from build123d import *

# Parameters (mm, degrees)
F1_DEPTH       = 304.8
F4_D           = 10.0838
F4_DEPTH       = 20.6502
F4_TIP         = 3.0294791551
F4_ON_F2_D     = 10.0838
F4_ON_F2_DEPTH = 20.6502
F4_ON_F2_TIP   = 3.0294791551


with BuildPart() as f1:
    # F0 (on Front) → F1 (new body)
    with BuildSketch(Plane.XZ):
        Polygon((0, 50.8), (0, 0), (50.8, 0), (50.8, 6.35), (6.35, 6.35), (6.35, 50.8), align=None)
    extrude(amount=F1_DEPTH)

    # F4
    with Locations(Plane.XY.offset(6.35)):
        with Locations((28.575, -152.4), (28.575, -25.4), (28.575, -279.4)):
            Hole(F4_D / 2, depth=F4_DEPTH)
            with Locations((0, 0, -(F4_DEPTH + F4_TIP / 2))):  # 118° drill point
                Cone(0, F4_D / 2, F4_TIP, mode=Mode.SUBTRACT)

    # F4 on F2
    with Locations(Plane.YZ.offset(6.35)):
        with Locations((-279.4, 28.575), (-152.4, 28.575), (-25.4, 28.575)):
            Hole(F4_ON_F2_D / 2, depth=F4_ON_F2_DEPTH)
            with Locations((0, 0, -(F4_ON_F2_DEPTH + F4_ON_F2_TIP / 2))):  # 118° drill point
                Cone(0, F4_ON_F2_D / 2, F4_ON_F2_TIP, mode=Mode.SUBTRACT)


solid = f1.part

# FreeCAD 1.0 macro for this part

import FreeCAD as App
import Part
import Sketcher
from FreeCAD import Vector
Q = App.Units.Quantity


def add_polygon(sketch, points):
    """Adds a closed chain of lines whose ends are joined by coincident constraints."""
    first, n = sketch.GeometryCount, len(points)
    for a, b in zip(points, points[1:] + points[:1]):
        sketch.addGeometry(Part.LineSegment(App.Vector(*a, 0), App.Vector(*b, 0)), False)
    for i in range(n):
        sketch.addConstraint(Sketcher.Constraint("Coincident", first + i, 2, first + (i + 1) % n, 1))

doc = App.newDocument("Part")
body = doc.addObject("PartDesign::Body", "Body")

# Sketch on XZ plane
sketch1 = body.newObject("Sketcher::SketchObject", "Sketch")
sketch1.AttachmentSupport = (doc.getObject("XZ_Plane"), [""])
sketch1.MapMode = "FlatFace"
add_polygon(sketch1, [(0, 51), (0, 0), (51, 0), (51, 6), (6, 6), (6, 51)])  # lines 0-5
sketch1.addConstraint(Sketcher.Constraint("Vertical", 0))
sketch1.addConstraint(Sketcher.Constraint("Horizontal", 1))
sketch1.addConstraint(Sketcher.Constraint("Vertical", 2))
sketch1.addConstraint(Sketcher.Constraint("Horizontal", 3))
sketch1.addConstraint(Sketcher.Constraint("Vertical", 4))
sketch1.addConstraint(Sketcher.Constraint("Horizontal", 5))
sketch1.addConstraint(Sketcher.Constraint("Coincident", 0, 2, -1, 1))
sketch1.addConstraint(Sketcher.Constraint("Equal", 1, 0))
sketch1.addConstraint(Sketcher.Constraint("Equal", 5, 2))
sketch1.addConstraint(Sketcher.Constraint("DistanceX", 1, 1, 1, 2, Q("2 in")))
sketch1.addConstraint(Sketcher.Constraint("DistanceX", 3, 2, 3, 1, Q("1.75 in")))
pad1 = body.newObject("PartDesign::Pad", "Pad")
pad1.Profile = sketch1
pad1.Length = Q("12 in")

# Sketch on XY plane
sketch2 = body.newObject("Sketcher::SketchObject", "Sketch001")
sketch2.AttachmentSupport = (doc.getObject("XY_Plane"), [""])
sketch2.MapMode = "FlatFace"
sketch2.AttachmentOffset = App.Placement(Vector(0, 0, 0.25 * 25.4), App.Rotation())
sketch2.addGeometry(Part.Circle(Vector(29, -152, 0), Vector(0, 0, 1), 5), False)
sketch2.addGeometry(Part.Circle(Vector(29, -25, 0), Vector(0, 0, 1), 5), False)
sketch2.addGeometry(Part.Circle(Vector(29, -279, 0), Vector(0, 0, 1), 5), False)
sketch2.addConstraint(Sketcher.Constraint("Equal", 0, 1))
sketch2.addConstraint(Sketcher.Constraint("Equal", 1, 2))
sketch2.addConstraint(Sketcher.Constraint("Vertical", 0, 3, 1, 3))
sketch2.addConstraint(Sketcher.Constraint("Vertical", 1, 3, 2, 3))
sketch2.addConstraint(Sketcher.Constraint("Diameter", 0, Q("0.397 in")))
sketch2.addConstraint(Sketcher.Constraint("DistanceY", 0, 3, -1, 1, Q("6 in")))
sketch2.addConstraint(Sketcher.Constraint("DistanceY", 1, 3, -1, 1, Q("1 in")))
sketch2.addConstraint(Sketcher.Constraint("DistanceY", 2, 3, -1, 1, Q("11 in")))
sketch2.addConstraint(Sketcher.Constraint("DistanceX", -1, 1, 0, 3, Q("1.125 in")))
doc.recompute()
hole = body.newObject("PartDesign::Hole", "Hole")
hole.Profile = sketch2
hole.ThreadType = "None"
hole.Diameter = Q("0.397 in")
hole.DepthType = "Dimension"
hole.Depth = Q("0.813 in")
hole.DrillPoint = "Angled"
hole.DrillPointAngle = 118

# Sketch on YZ plane
sketch3 = body.newObject("Sketcher::SketchObject", "Sketch002")
sketch3.AttachmentSupport = (doc.getObject("YZ_Plane"), [""])
sketch3.MapMode = "FlatFace"
sketch3.AttachmentOffset = App.Placement(Vector(0, 0, 0.25 * 25.4), App.Rotation())
sketch3.addGeometry(Part.Circle(Vector(-279, 29, 0), Vector(0, 0, 1), 5), False)
sketch3.addGeometry(Part.Circle(Vector(-152, 29, 0), Vector(0, 0, 1), 5), False)
sketch3.addGeometry(Part.Circle(Vector(-25, 29, 0), Vector(0, 0, 1), 5), False)
sketch3.addConstraint(Sketcher.Constraint("Equal", 0, 1))
sketch3.addConstraint(Sketcher.Constraint("Equal", 1, 2))
sketch3.addConstraint(Sketcher.Constraint("Horizontal", 0, 3, 1, 3))
sketch3.addConstraint(Sketcher.Constraint("Horizontal", 1, 3, 2, 3))
sketch3.addConstraint(Sketcher.Constraint("Diameter", 0, Q("0.397 in")))
sketch3.addConstraint(Sketcher.Constraint("DistanceX", 0, 3, -1, 1, Q("11 in")))
sketch3.addConstraint(Sketcher.Constraint("DistanceX", 1, 3, -1, 1, Q("6 in")))
sketch3.addConstraint(Sketcher.Constraint("DistanceX", 2, 3, -1, 1, Q("1 in")))
sketch3.addConstraint(Sketcher.Constraint("DistanceY", -1, 1, 0, 3, Q("1.125 in")))
doc.recompute()
hole2 = body.newObject("PartDesign::Hole", "Hole001")
hole2.Profile = sketch3
hole2.ThreadType = "None"
hole2.Diameter = Q("0.397 in")
hole2.DepthType = "Dimension"
hole2.Depth = Q("0.813 in")
hole2.DrillPoint = "Angled"
hole2.DrillPointAngle = 118

doc.recompute()
